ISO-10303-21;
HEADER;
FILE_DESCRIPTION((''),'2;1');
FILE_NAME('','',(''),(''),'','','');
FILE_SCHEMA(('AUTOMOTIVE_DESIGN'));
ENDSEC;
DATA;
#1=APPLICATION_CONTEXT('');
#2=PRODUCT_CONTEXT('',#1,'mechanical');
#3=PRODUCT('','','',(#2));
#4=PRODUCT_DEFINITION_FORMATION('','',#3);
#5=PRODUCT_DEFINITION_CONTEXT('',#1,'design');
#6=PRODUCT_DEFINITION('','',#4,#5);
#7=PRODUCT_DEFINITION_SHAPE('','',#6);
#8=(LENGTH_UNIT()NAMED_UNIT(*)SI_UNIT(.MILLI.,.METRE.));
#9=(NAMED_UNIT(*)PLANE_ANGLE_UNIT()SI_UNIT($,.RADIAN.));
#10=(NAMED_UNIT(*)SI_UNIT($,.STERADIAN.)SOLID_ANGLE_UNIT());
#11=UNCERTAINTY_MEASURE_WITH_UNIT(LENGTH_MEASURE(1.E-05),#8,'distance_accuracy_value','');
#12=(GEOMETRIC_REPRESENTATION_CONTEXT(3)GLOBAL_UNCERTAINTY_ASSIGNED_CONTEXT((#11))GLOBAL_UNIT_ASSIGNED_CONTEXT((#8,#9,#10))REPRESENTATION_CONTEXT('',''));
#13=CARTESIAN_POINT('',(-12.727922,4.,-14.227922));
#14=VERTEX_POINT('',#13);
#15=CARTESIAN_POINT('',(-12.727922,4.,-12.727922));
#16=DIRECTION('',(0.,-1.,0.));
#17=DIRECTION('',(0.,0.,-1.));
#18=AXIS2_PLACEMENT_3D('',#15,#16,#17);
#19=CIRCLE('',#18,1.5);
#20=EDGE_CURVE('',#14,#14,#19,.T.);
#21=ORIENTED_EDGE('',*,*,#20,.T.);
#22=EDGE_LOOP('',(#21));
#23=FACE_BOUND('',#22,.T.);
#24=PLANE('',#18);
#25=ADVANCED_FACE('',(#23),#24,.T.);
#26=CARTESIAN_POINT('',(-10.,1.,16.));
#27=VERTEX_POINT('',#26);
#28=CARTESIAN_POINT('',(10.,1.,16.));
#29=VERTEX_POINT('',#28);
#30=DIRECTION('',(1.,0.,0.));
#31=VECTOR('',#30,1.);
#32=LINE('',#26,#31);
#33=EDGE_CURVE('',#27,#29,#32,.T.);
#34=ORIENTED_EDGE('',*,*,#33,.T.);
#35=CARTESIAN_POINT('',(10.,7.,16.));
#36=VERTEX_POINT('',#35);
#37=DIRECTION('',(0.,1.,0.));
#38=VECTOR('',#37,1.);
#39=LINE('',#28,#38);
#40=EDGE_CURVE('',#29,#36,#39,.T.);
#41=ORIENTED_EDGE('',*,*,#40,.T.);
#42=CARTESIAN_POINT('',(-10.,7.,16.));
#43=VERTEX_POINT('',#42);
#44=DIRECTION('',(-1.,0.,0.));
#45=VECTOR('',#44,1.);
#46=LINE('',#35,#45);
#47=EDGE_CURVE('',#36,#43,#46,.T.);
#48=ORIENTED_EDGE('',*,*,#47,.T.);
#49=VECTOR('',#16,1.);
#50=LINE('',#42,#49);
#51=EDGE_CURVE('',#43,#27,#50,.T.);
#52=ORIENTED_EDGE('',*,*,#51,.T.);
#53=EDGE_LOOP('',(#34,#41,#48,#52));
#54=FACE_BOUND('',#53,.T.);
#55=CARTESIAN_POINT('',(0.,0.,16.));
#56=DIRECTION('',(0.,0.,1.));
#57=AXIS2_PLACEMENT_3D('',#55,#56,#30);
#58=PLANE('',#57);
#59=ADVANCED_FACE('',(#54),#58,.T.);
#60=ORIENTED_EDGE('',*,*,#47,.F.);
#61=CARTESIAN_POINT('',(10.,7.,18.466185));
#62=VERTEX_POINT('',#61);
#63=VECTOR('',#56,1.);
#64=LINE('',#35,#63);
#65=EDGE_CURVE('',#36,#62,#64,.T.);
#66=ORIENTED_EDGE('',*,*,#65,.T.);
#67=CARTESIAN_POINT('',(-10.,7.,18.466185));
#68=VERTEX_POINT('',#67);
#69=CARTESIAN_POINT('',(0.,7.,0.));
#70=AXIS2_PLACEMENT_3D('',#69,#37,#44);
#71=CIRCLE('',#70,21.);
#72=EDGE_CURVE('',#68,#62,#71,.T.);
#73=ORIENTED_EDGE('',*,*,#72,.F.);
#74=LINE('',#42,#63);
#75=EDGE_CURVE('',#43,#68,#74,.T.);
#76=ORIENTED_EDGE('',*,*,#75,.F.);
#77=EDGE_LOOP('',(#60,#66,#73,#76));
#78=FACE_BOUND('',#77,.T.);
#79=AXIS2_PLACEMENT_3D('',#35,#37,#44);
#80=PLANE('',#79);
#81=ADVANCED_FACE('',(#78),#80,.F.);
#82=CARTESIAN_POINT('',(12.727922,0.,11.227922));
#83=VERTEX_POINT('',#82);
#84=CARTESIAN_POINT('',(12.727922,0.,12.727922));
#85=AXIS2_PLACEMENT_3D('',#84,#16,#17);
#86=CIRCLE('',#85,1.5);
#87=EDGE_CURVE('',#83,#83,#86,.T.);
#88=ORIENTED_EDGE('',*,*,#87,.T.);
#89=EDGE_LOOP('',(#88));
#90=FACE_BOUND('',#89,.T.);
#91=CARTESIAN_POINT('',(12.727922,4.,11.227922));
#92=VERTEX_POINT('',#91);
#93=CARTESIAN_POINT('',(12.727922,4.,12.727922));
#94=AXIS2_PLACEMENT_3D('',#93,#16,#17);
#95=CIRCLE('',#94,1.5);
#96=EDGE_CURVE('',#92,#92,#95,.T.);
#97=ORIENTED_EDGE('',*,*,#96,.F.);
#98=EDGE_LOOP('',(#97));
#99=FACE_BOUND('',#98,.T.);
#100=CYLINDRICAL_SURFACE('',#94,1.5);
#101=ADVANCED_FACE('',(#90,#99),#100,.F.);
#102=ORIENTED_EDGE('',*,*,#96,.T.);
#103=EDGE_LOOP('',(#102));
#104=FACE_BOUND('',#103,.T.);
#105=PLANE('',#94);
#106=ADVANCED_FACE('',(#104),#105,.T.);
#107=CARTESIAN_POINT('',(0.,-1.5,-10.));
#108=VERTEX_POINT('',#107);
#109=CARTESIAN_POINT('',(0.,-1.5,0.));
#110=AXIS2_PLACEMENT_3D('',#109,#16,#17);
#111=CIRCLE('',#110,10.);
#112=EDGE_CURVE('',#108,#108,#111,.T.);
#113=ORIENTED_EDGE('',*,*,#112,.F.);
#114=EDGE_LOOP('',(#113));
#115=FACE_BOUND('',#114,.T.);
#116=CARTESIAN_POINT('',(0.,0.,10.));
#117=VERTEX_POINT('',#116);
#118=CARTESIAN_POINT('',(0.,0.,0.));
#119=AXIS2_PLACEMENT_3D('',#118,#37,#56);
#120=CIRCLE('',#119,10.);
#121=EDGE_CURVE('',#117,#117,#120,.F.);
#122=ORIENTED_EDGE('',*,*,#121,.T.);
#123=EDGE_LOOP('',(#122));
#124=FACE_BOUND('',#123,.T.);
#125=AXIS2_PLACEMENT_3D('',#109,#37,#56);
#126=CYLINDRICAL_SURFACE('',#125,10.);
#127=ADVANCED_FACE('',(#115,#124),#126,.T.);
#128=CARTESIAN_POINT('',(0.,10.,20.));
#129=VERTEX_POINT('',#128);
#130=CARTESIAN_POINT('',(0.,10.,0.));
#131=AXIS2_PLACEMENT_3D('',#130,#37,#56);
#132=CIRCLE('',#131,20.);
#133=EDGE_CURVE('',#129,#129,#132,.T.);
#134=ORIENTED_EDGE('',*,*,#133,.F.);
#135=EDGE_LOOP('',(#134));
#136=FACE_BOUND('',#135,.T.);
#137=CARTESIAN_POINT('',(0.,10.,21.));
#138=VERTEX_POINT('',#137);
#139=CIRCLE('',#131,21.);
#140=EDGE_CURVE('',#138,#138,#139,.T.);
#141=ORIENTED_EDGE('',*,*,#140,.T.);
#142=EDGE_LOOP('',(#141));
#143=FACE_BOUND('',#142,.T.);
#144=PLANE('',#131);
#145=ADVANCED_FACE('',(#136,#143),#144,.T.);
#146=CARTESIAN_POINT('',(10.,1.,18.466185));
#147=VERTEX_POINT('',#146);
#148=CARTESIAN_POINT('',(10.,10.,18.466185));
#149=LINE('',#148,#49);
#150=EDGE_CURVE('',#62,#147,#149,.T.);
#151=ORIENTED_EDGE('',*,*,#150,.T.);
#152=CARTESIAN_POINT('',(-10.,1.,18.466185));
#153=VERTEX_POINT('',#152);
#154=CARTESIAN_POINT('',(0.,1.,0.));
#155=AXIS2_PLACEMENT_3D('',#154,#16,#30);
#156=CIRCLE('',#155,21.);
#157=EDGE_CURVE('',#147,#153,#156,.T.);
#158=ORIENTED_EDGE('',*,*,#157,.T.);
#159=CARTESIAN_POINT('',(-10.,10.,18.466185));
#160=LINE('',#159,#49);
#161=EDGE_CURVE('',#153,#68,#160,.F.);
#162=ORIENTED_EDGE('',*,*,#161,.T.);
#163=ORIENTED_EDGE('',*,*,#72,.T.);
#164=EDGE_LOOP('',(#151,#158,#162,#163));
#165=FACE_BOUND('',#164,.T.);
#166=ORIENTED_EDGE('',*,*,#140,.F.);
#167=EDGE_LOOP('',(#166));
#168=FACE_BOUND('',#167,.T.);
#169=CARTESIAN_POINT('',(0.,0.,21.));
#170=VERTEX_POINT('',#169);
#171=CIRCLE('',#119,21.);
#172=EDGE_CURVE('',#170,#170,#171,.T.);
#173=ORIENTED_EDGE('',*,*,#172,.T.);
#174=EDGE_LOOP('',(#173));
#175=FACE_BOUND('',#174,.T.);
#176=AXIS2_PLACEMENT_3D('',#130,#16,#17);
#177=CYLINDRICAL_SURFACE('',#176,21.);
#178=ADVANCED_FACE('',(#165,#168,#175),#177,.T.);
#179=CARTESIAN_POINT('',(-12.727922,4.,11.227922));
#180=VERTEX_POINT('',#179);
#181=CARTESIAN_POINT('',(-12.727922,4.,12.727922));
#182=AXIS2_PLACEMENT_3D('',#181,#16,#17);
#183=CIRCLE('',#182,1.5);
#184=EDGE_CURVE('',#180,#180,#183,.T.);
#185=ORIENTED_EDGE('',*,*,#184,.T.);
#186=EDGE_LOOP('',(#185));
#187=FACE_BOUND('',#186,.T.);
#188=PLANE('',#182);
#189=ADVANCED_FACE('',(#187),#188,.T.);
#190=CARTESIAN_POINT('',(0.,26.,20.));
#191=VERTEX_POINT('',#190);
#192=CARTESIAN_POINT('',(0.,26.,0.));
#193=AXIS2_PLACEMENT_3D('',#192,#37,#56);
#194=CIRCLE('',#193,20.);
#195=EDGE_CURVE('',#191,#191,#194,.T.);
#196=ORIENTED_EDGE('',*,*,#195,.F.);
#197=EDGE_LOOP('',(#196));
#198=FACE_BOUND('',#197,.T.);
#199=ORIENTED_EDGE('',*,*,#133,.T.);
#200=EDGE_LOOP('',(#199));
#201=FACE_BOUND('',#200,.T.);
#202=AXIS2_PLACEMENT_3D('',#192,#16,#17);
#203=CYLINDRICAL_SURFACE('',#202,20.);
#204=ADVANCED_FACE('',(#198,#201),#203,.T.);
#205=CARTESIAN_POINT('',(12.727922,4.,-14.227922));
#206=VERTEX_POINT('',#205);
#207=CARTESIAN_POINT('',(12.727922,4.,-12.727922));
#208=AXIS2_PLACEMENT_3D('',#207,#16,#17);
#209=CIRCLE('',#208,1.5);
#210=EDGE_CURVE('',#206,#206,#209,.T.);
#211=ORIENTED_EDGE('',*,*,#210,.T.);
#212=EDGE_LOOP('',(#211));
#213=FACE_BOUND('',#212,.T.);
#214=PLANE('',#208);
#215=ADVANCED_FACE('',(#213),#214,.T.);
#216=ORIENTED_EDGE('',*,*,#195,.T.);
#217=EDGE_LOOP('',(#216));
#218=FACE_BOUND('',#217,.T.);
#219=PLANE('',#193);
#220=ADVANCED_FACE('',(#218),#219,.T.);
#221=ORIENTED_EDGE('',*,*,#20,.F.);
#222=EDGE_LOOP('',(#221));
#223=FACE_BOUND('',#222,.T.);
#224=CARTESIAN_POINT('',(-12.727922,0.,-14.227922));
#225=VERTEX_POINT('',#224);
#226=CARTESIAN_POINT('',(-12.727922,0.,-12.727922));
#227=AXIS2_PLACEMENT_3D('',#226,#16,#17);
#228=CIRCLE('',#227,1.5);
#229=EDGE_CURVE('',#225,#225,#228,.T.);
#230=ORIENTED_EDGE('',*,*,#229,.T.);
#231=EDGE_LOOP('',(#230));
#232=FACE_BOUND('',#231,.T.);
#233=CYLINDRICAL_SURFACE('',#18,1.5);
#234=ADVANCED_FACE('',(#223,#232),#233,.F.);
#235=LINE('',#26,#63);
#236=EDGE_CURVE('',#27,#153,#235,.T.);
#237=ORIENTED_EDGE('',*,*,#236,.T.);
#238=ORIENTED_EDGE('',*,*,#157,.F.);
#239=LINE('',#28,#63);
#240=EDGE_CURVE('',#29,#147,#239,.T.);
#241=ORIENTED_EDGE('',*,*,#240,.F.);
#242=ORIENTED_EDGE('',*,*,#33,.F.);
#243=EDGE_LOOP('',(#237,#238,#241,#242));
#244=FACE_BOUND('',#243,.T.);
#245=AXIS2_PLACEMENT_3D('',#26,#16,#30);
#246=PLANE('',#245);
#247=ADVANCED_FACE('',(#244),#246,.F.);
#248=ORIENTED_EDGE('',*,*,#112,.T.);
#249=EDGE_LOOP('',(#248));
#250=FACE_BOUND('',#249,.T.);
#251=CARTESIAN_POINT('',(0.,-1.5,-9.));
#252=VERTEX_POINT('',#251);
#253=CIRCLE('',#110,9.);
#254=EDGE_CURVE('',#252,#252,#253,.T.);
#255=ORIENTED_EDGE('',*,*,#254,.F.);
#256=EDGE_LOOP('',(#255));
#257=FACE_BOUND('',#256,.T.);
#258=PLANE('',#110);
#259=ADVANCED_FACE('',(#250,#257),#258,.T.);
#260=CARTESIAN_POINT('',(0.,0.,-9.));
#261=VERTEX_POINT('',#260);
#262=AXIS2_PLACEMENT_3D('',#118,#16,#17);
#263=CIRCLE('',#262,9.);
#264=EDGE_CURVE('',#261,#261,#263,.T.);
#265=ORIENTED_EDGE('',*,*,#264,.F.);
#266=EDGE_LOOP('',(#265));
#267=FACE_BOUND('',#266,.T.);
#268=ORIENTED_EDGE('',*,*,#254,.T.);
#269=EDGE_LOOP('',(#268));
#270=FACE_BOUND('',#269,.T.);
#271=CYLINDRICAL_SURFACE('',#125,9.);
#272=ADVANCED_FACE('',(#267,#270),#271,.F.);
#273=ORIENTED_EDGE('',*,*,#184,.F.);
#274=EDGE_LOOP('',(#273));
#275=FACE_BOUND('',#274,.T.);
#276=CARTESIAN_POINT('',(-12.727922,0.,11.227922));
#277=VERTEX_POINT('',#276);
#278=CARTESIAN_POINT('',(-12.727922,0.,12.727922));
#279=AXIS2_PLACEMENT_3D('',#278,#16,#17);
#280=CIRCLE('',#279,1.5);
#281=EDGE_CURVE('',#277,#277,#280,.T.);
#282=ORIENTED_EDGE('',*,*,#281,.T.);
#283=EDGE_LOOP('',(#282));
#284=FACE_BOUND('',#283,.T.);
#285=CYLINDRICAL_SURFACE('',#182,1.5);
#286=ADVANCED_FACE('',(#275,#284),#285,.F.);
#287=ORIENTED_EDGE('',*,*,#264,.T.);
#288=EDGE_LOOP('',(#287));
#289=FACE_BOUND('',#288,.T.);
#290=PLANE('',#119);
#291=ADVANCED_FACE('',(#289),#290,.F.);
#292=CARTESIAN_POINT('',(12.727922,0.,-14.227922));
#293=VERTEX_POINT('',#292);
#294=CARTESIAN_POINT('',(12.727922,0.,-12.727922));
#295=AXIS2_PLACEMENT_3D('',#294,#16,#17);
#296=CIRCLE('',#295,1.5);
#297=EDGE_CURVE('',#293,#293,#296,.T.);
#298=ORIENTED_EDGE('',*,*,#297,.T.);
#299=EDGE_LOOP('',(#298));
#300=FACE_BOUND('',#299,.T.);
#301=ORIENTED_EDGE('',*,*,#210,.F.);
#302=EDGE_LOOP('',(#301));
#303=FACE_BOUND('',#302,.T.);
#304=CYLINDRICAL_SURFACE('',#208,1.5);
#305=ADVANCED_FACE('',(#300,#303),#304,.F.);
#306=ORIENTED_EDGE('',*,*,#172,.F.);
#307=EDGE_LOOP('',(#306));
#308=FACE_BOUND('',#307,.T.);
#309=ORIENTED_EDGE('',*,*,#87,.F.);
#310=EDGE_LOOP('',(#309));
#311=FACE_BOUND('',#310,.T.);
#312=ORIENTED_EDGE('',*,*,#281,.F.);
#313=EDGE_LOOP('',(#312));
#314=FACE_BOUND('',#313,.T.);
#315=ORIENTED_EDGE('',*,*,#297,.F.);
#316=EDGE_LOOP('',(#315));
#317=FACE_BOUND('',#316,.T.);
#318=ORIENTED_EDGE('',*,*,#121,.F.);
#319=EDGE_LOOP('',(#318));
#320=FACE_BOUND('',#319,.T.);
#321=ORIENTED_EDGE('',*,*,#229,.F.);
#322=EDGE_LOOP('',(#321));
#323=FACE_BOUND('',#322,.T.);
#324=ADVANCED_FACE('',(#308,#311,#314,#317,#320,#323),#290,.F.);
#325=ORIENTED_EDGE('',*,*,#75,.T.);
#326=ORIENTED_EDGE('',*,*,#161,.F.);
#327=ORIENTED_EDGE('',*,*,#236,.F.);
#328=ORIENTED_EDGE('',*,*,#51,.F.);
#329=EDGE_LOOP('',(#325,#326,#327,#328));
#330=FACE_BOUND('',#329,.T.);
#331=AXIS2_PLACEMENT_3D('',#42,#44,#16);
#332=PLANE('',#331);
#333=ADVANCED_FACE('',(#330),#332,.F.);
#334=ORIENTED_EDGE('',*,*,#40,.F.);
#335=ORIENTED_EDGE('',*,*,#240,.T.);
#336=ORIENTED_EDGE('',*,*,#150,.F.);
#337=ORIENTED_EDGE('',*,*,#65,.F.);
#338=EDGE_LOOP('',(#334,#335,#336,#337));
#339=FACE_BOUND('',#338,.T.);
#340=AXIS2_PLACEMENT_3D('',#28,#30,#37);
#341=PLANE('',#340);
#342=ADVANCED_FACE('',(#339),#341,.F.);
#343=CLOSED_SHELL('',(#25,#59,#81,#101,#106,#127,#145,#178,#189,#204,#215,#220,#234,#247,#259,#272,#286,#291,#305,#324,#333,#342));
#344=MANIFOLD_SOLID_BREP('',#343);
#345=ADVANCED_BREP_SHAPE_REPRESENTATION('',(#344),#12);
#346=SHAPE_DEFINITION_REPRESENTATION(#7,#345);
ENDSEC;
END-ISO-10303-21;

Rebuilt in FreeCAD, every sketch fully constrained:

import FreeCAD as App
import Part
import Sketcher
from FreeCAD import Vector

doc = App.newDocument("Part")
body = doc.addObject("PartDesign::Body", "Body")

# Sketch on XZ plane
sketch1 = body.newObject("Sketcher::SketchObject", "Sketch")
sketch1.AttachmentSupport = (doc.getObject("XZ_Plane"), [""])
sketch1.MapMode = "FlatFace"
sketch1.addGeometry(Part.Circle(Vector(0, 0, 0), Vector(0, 0, 1), 21), False)
sketch1.addConstraint([
    Sketcher.Constraint("Coincident", 0, 3, -1, 1),
    Sketcher.Constraint("Diameter", 0, 42.0),
])
pad1 = body.newObject("PartDesign::Pad", "Pad")
pad1.Profile = sketch1
pad1.Length = 10
pad1.Reversed = True

# Sketch on XZ plane
sketch2 = body.newObject("Sketcher::SketchObject", "Sketch001")
sketch2.AttachmentSupport = (doc.getObject("XZ_Plane"), [""])
sketch2.MapMode = "FlatFace"
sketch2.AttachmentOffset = App.Placement(Vector(0, 0, -10), App.Rotation())
sketch2.addGeometry(Part.Circle(Vector(0, 0, 0), Vector(0, 0, 1), 20), False)
sketch2.addConstraint([
    Sketcher.Constraint("Coincident", 0, 3, -1, 1),
    Sketcher.Constraint("Diameter", 0, 40.0),
])
pad2 = body.newObject("PartDesign::Pad", "Pad001")
pad2.Profile = sketch2
pad2.Length = 16
pad2.Reversed = True

# Sketch on XZ plane
sketch3 = body.newObject("Sketcher::SketchObject", "Sketch002")
sketch3.AttachmentSupport = (doc.getObject("XZ_Plane"), [""])
sketch3.MapMode = "FlatFace"
sketch3.addGeometry([
    Part.Circle(Vector(12.727922, 12.727922, 0), Vector(0, 0, 1), 1.5),
    Part.Circle(Vector(12.727922, -12.727922, 0), Vector(0, 0, 1), 1.5),
    Part.Circle(Vector(-12.727922, -12.727922, 0), Vector(0, 0, 1), 1.5),
    Part.Circle(Vector(-12.727922, 12.727922, 0), Vector(0, 0, 1), 1.5),
], False)
sketch3.addConstraint([
    Sketcher.Constraint("Equal", 0, 1),
    Sketcher.Constraint("Equal", 1, 2),
    Sketcher.Constraint("Equal", 2, 3),
    Sketcher.Constraint("Symmetric", 0, 3, 2, 3, -1, 1),
    Sketcher.Constraint("Symmetric", 1, 3, 3, 3, -1, 1),
    Sketcher.Constraint("Symmetric", 1, 3, 2, 3, -2),
    Sketcher.Constraint("Diameter", 0, 3.0),
    Sketcher.Constraint("DistanceX", -1, 1, 0, 3, 12.727922),
    Sketcher.Constraint("DistanceY", -1, 1, 0, 3, 12.727922),
])
pocket1 = body.newObject("PartDesign::Pocket", "Pocket")
pocket1.Profile = sketch3
pocket1.Length = 4

# Sketch on XZ plane
sketch4 = body.newObject("Sketcher::SketchObject", "Sketch003")
sketch4.AttachmentSupport = (doc.getObject("XZ_Plane"), [""])
sketch4.MapMode = "FlatFace"
sketch4.addGeometry([
    Part.Circle(Vector(0, 0, 0), Vector(0, 0, 1), 10),
    Part.Circle(Vector(0, 0, 0), Vector(0, 0, 1), 9),
], False)
sketch4.addConstraint([
    Sketcher.Constraint("Coincident", 0, 3, -1, 1),
    Sketcher.Constraint("Coincident", 1, 3, -1, 1),
    Sketcher.Constraint("Diameter", 0, 20.0),
    Sketcher.Constraint("Diameter", 1, 18.0),
])
pad3 = body.newObject("PartDesign::Pad", "Pad002")
pad3.Profile = sketch4
pad3.Length = 1.5

# Sketch on XY plane
sketch5 = body.newObject("Sketcher::SketchObject", "Sketch004")
sketch5.AttachmentSupport = (doc.getObject("XY_Plane"), [""])
sketch5.MapMode = "FlatFace"
sketch5.AttachmentOffset = App.Placement(Vector(0, 0, 21), App.Rotation())
sketch5.addGeometry([
    Part.LineSegment(Vector(-10, 7, 0), Vector(-10, 1, 0)),
    Part.LineSegment(Vector(-10, 1, 0), Vector(10, 1, 0)),
    Part.LineSegment(Vector(10, 1, 0), Vector(10, 7, 0)),
    Part.LineSegment(Vector(10, 7, 0), Vector(-10, 7, 0)),
], False)
sketch5.addConstraint([
    Sketcher.Constraint("Coincident", 0, 2, 1, 1),
    Sketcher.Constraint("Coincident", 1, 2, 2, 1),
    Sketcher.Constraint("Coincident", 2, 2, 3, 1),
    Sketcher.Constraint("Coincident", 3, 2, 0, 1),
    Sketcher.Constraint("Vertical", 0),
    Sketcher.Constraint("Horizontal", 1),
    Sketcher.Constraint("Vertical", 2),
    Sketcher.Constraint("Horizontal", 3),
    Sketcher.Constraint("DistanceX", 1, 1, 1, 2, 20.0),
    Sketcher.Constraint("DistanceY", 0, 2, 0, 1, 6.0),
    Sketcher.Constraint("DistanceX", 0, 2, -1, 1, 10.0),
    Sketcher.Constraint("DistanceY", -1, 1, 0, 2, 1.0),
])
pocket2 = body.newObject("PartDesign::Pocket", "Pocket001")
pocket2.Profile = sketch5
pocket2.Length = 5

doc.recompute()
